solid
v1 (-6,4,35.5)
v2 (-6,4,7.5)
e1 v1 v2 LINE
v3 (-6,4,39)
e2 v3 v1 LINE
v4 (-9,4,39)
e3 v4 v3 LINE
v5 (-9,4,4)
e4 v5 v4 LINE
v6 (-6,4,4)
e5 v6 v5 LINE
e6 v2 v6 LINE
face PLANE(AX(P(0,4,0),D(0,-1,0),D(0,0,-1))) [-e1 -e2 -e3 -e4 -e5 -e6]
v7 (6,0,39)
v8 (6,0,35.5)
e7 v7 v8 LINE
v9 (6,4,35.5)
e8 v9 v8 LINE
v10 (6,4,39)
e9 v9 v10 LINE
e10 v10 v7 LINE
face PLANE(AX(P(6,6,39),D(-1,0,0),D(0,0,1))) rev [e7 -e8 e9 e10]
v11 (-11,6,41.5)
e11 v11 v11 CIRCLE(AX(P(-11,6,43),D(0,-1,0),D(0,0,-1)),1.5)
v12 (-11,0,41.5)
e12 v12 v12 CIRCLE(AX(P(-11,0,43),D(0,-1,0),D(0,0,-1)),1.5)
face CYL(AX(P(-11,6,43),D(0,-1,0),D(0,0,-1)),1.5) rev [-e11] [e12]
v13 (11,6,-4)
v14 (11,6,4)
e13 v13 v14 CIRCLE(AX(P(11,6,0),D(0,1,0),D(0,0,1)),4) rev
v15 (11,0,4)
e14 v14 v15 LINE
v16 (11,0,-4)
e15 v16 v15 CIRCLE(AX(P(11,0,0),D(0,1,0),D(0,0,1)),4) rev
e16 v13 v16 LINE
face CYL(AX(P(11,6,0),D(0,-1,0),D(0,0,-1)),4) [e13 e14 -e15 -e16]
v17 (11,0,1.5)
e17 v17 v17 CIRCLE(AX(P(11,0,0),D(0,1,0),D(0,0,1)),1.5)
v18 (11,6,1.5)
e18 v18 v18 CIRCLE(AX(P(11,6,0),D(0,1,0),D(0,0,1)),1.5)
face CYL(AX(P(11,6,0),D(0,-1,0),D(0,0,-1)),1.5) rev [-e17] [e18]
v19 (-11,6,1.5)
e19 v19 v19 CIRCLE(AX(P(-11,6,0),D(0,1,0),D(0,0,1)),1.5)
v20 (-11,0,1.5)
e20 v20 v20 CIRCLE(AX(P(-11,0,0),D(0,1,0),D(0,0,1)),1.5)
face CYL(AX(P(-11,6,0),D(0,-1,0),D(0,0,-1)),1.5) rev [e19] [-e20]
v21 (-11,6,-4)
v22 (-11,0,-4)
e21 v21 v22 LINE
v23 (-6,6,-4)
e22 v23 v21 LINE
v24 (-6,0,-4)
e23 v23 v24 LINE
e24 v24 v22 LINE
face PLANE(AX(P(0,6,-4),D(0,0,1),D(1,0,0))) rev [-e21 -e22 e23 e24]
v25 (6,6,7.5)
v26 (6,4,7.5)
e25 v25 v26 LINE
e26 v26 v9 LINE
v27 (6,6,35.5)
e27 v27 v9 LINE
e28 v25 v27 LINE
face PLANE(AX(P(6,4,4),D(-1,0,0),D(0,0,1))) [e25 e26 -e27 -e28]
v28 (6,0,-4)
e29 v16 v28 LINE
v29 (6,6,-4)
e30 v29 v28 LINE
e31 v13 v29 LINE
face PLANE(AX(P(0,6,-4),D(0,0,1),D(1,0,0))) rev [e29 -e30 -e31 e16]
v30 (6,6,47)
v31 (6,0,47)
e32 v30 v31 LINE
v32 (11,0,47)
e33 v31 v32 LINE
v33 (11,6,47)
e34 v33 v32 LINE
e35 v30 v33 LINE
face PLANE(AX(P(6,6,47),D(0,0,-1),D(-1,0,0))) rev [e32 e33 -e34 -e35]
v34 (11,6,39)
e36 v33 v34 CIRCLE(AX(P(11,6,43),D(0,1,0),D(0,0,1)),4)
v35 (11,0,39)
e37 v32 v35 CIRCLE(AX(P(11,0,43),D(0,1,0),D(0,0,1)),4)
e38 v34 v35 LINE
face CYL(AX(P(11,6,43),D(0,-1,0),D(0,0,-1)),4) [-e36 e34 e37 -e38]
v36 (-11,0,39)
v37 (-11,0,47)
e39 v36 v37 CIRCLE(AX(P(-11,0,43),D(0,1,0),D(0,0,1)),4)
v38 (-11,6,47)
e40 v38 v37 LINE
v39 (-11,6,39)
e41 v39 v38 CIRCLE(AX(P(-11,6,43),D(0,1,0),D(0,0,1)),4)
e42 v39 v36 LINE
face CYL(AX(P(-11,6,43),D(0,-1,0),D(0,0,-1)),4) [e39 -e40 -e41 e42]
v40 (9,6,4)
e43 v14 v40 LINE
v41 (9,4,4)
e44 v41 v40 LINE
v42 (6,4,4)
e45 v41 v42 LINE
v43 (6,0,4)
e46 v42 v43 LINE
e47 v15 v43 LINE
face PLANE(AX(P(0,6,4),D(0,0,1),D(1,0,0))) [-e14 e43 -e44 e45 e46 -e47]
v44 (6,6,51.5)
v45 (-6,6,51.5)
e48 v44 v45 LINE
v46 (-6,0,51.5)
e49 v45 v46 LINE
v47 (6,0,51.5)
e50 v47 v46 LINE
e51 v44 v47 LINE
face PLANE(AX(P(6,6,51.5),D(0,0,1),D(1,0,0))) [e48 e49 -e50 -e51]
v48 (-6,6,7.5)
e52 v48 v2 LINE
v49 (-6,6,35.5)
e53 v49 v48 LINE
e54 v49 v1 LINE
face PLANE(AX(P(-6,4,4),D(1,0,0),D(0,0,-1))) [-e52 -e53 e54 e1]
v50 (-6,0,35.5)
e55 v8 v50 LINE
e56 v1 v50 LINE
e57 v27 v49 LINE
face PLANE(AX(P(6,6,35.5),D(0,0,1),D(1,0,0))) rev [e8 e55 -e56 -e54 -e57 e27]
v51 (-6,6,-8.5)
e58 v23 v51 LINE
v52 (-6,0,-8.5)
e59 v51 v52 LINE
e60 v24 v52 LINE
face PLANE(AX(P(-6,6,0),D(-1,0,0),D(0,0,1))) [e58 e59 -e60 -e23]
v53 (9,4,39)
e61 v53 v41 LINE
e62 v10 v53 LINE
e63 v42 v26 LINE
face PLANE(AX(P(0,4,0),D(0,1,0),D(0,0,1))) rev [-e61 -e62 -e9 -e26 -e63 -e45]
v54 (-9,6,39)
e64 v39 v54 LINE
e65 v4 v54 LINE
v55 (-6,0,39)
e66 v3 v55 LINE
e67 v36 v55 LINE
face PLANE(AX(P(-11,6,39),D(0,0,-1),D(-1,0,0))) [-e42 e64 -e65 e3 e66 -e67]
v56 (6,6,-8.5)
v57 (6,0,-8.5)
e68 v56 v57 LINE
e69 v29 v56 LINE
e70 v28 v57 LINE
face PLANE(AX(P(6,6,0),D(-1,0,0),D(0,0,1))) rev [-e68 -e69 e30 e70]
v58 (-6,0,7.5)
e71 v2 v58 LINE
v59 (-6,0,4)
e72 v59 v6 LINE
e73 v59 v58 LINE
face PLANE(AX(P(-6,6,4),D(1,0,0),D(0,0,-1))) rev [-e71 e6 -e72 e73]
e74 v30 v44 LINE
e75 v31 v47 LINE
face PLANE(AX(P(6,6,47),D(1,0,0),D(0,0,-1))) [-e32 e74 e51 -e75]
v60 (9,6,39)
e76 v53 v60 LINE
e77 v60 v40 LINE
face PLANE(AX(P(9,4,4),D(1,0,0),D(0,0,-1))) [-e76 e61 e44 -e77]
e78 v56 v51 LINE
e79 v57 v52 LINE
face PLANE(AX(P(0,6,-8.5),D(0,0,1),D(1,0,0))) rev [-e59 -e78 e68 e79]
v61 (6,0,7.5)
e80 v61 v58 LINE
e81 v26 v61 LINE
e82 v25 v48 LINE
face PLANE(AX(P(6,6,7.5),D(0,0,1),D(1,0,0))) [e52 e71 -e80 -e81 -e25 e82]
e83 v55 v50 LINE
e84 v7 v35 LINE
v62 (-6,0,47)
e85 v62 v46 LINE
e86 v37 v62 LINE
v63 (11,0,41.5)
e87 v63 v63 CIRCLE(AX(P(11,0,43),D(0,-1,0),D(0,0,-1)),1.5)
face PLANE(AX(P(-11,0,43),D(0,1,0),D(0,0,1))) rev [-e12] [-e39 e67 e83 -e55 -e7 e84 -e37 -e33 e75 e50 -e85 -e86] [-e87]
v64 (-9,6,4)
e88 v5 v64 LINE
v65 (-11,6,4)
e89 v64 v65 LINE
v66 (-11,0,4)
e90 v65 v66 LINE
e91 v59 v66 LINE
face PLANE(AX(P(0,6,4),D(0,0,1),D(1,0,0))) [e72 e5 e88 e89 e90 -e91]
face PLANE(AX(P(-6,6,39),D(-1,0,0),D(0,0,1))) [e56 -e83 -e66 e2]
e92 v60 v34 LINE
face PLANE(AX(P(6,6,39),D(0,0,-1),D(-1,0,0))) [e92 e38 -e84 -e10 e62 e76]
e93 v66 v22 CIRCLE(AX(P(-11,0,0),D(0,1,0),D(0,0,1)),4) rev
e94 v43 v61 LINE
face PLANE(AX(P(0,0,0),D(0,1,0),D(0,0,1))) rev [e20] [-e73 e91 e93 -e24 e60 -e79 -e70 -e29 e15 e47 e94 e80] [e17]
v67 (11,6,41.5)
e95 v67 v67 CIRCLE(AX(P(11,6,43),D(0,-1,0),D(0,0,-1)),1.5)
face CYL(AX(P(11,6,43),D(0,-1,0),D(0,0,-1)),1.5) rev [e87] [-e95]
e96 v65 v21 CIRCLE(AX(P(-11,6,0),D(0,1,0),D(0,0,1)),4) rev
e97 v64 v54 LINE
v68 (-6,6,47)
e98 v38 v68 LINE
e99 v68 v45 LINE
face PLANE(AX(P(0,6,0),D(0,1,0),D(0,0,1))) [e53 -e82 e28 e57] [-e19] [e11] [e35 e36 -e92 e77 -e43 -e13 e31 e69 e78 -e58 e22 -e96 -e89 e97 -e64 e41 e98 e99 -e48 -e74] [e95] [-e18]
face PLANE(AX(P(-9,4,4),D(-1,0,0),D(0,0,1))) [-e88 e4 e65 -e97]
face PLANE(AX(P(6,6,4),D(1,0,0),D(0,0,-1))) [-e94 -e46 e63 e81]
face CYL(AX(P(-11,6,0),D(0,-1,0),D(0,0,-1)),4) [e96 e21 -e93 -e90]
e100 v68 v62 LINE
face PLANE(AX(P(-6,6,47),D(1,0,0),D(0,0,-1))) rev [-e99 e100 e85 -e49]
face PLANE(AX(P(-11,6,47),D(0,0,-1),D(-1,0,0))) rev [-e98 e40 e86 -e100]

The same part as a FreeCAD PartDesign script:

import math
import FreeCAD as App
import Part
import Sketcher

V = App.Vector
Q = App.Units.Quantity


def add_polygon(sketch, points):
    """Adds a closed chain of lines whose ends are joined by coincident constraints."""
    first, n = sketch.GeometryCount, len(points)
    for a, b in zip(points, points[1:] + points[:1]):
        sketch.addGeometry(Part.LineSegment(App.Vector(*a, 0), App.Vector(*b, 0)), False)
    for i in range(n):
        sketch.addConstraint(Sketcher.Constraint("Coincident", first + i, 2, first + (i + 1) % n, 1))

doc = App.newDocument("Part")
body = doc.addObject("PartDesign::Body", "Body")
body.AllowCompound = True

# Sketch on XZ plane
sketch1 = body.newObject("Sketcher::SketchObject", "Sketch")
sketch1.AttachmentSupport = (doc.getObject("XZ_Plane"), [""])
sketch1.MapMode = "FlatFace"
sketch1.addGeometry(Part.LineSegment(V(6, 4, 0), V(11, 4, 0)), False)
sketch1.addGeometry(Part.ArcOfCircle(Part.Circle(V(11, 0, 0), V(0, 0, 1), 4), math.radians(-90), math.radians(90)), False)
sketch1.addGeometry(Part.LineSegment(V(11, -4, 0), V(6, -4, 0)), False)
sketch1.addGeometry(Part.LineSegment(V(6, -4, 0), V(6, -8.5, 0)), False)
sketch1.addGeometry(Part.LineSegment(V(6, -8.5, 0), V(-6, -8.5, 0)), False)
sketch1.addGeometry(Part.LineSegment(V(-6, -8.5, 0), V(-6, -4, 0)), False)
sketch1.addGeometry(Part.LineSegment(V(-6, -4, 0), V(-11, -4, 0)), False)
sketch1.addGeometry(Part.ArcOfCircle(Part.Circle(V(-11, 0, 0), V(0, 0, 1), 4), math.radians(90), math.radians(270)), False)
sketch1.addGeometry(Part.LineSegment(V(-11, 4, 0), V(-6, 4, 0)), False)
sketch1.addGeometry(Part.LineSegment(V(-6, 4, 0), V(-6, 7.5, 0)), False)
sketch1.addGeometry(Part.LineSegment(V(-6, 7.5, 0), V(6, 7.5, 0)), False)
sketch1.addGeometry(Part.LineSegment(V(6, 7.5, 0), V(6, 4, 0)), False)
sketch1.addGeometry(Part.Circle(V(11, 0, 0), V(0, 0, 1), 1.5), False)
sketch1.addGeometry(Part.Circle(V(-11, 0, 0), V(0, 0, 1), 1.5), False)
sketch1.addGeometry(Part.LineSegment(V(6, 51.5, 0), V(6, 47, 0)), False)
sketch1.addGeometry(Part.LineSegment(V(6, 47, 0), V(11, 47, 0)), False)
sketch1.addGeometry(Part.ArcOfCircle(Part.Circle(V(11, 43, 0), V(0, 0, 1), 4), math.radians(-90), math.radians(90)), False)
sketch1.addGeometry(Part.LineSegment(V(11, 39, 0), V(6, 39, 0)), False)
sketch1.addGeometry(Part.LineSegment(V(6, 39, 0), V(6, 35.5, 0)), False)
sketch1.addGeometry(Part.LineSegment(V(6, 35.5, 0), V(-6, 35.5, 0)), False)
sketch1.addGeometry(Part.LineSegment(V(-6, 35.5, 0), V(-6, 39, 0)), False)
sketch1.addGeometry(Part.LineSegment(V(-6, 39, 0), V(-11, 39, 0)), False)
sketch1.addGeometry(Part.ArcOfCircle(Part.Circle(V(-11, 43, 0), V(0, 0, 1), 4), math.radians(90), math.radians(270)), False)
sketch1.addGeometry(Part.LineSegment(V(-11, 47, 0), V(-6, 47, 0)), False)
sketch1.addGeometry(Part.LineSegment(V(-6, 47, 0), V(-6, 51.5, 0)), False)
sketch1.addGeometry(Part.LineSegment(V(-6, 51.5, 0), V(6, 51.5, 0)), False)
sketch1.addGeometry(Part.Circle(V(11, 43, 0), V(0, 0, 1), 1.5), False)
sketch1.addGeometry(Part.Circle(V(-11, 43, 0), V(0, 0, 1), 1.5), False)
sketch1.addConstraint(Sketcher.Constraint("Tangent", 0, 2, 1, 2))
sketch1.addConstraint(Sketcher.Constraint("Tangent", 1, 1, 2, 1))
sketch1.addConstraint(Sketcher.Constraint("Coincident", 2, 2, 3, 1))
sketch1.addConstraint(Sketcher.Constraint("Coincident", 3, 2, 4, 1))
sketch1.addConstraint(Sketcher.Constraint("Coincident", 4, 2, 5, 1))
sketch1.addConstraint(Sketcher.Constraint("Coincident", 5, 2, 6, 1))
sketch1.addConstraint(Sketcher.Constraint("Tangent", 6, 2, 7, 2))
sketch1.addConstraint(Sketcher.Constraint("Tangent", 7, 1, 8, 1))
sketch1.addConstraint(Sketcher.Constraint("Coincident", 8, 2, 9, 1))
sketch1.addConstraint(Sketcher.Constraint("Coincident", 9, 2, 10, 1))
sketch1.addConstraint(Sketcher.Constraint("Coincident", 10, 2, 11, 1))
sketch1.addConstraint(Sketcher.Constraint("Coincident", 11, 2, 0, 1))
sketch1.addConstraint(Sketcher.Constraint("Coincident", 14, 2, 15, 1))
sketch1.addConstraint(Sketcher.Constraint("Tangent", 15, 2, 16, 2))
sketch1.addConstraint(Sketcher.Constraint("Tangent", 16, 1, 17, 1))
sketch1.addConstraint(Sketcher.Constraint("Coincident", 17, 2, 18, 1))
sketch1.addConstraint(Sketcher.Constraint("Coincident", 18, 2, 19, 1))
sketch1.addConstraint(Sketcher.Constraint("Coincident", 19, 2, 20, 1))
sketch1.addConstraint(Sketcher.Constraint("Coincident", 20, 2, 21, 1))
sketch1.addConstraint(Sketcher.Constraint("Tangent", 21, 2, 22, 2))
sketch1.addConstraint(Sketcher.Constraint("Tangent", 22, 1, 23, 1))
sketch1.addConstraint(Sketcher.Constraint("Coincident", 23, 2, 24, 1))
sketch1.addConstraint(Sketcher.Constraint("Coincident", 24, 2, 25, 1))
sketch1.addConstraint(Sketcher.Constraint("Coincident", 25, 2, 14, 1))
sketch1.addConstraint(Sketcher.Constraint("Horizontal", 0))
sketch1.addConstraint(Sketcher.Constraint("Horizontal", 2))
sketch1.addConstraint(Sketcher.Constraint("Vertical", 3))
sketch1.addConstraint(Sketcher.Constraint("Horizontal", 4))
sketch1.addConstraint(Sketcher.Constraint("Vertical", 5))
sketch1.addConstraint(Sketcher.Constraint("Horizontal", 6))
sketch1.addConstraint(Sketcher.Constraint("Horizontal", 8))
sketch1.addConstraint(Sketcher.Constraint("Vertical", 9))
sketch1.addConstraint(Sketcher.Constraint("Horizontal", 10))
sketch1.addConstraint(Sketcher.Constraint("Vertical", 11))
sketch1.addConstraint(Sketcher.Constraint("Vertical", 14))
sketch1.addConstraint(Sketcher.Constraint("Horizontal", 15))
sketch1.addConstraint(Sketcher.Constraint("Horizontal", 17))
sketch1.addConstraint(Sketcher.Constraint("Vertical", 18))
sketch1.addConstraint(Sketcher.Constraint("Horizontal", 19))
sketch1.addConstraint(Sketcher.Constraint("Vertical", 20))
sketch1.addConstraint(Sketcher.Constraint("Horizontal", 21))
sketch1.addConstraint(Sketcher.Constraint("Horizontal", 23))
sketch1.addConstraint(Sketcher.Constraint("Vertical", 24))
sketch1.addConstraint(Sketcher.Constraint("Horizontal", 25))
sketch1.addConstraint(Sketcher.Constraint("Coincident", 12, 3, 1, 3))
sketch1.addConstraint(Sketcher.Constraint("Coincident", 13, 3, 7, 3))
sketch1.addConstraint(Sketcher.Constraint("Coincident", 26, 3, 16, 3))
sketch1.addConstraint(Sketcher.Constraint("Coincident", 27, 3, 22, 3))
sketch1.addConstraint(Sketcher.Constraint("Equal", 1, 7))
sketch1.addConstraint(Sketcher.Constraint("Equal", 12, 13))
sketch1.addConstraint(Sketcher.Constraint("Equal", 7, 16))
sketch1.addConstraint(Sketcher.Constraint("Equal", 16, 22))
sketch1.addConstraint(Sketcher.Constraint("Equal", 13, 26))
sketch1.addConstraint(Sketcher.Constraint("Equal", 26, 27))
sketch1.addConstraint(Sketcher.Constraint("Symmetric", 1, 3, 7, 3, -1, 1))
sketch1.addConstraint(Sketcher.Constraint("Symmetric", 16, 3, 22, 3, -2))
sketch1.addConstraint(Sketcher.Constraint("Symmetric", 2, 2, 5, 2, -2))
sketch1.addConstraint(Sketcher.Constraint("Vertical", 12, 3, 16, 3))
sketch1.addConstraint(Sketcher.Constraint("Vertical", 5, 2, 8, 2))
sketch1.addConstraint(Sketcher.Constraint("Vertical", 3, 2, 10, 2))
sketch1.addConstraint(Sketcher.Constraint("Vertical", 11, 2, 14, 2))
sketch1.addConstraint(Sketcher.Constraint("Vertical", 14, 2, 17, 2))
sketch1.addConstraint(Sketcher.Constraint("Vertical", 9, 2, 19, 2))
sketch1.addConstraint(Sketcher.Constraint("Vertical", 20, 2, 23, 2))
sketch1.addConstraint(Sketcher.Constraint("Equal", 5, 14))
sketch1.addConstraint(Sketcher.Constraint("Equal", 11, 18))
sketch1.addConstraint(Sketcher.Constraint("Diameter", 12, Q("3 mm")))
sketch1.addConstraint(Sketcher.Constraint("Radius", 1, Q("4 mm")))
sketch1.addConstraint(Sketcher.Constraint("DistanceX", 0, 1, 0, 2, Q("5 mm")))
sketch1.addConstraint(Sketcher.Constraint("DistanceX", 4, 2, 4, 1, Q("12 mm")))
sketch1.addConstraint(Sketcher.Constraint("DistanceY", 3, 2, 3, 1, Q("4.5 mm")))
sketch1.addConstraint(Sketcher.Constraint("DistanceY", 9, 1, 9, 2, Q("3.5 mm")))
sketch1.addConstraint(Sketcher.Constraint("DistanceY", -1, 1, 16, 3, Q("43 mm")))
pad1 = body.newObject("PartDesign::Pad", "Pad")
pad1.Profile = sketch1
pad1.Length = 6
pad1.Reversed = True

# Sketch on XZ plane
sketch2 = body.newObject("Sketcher::SketchObject", "Sketch001")
sketch2.AttachmentSupport = (doc.getObject("XZ_Plane"), [""])
sketch2.MapMode = "FlatFace"
sketch2.AttachmentOffset = App.Placement(V(0, 0, -6), App.Rotation())
add_polygon(sketch2, [(6, 4), (6, 39), (9, 39), (9, 4)])  # lines 0-3
add_polygon(sketch2, [(-9, 4), (-9, 39), (-6, 39), (-6, 4)])  # lines 4-7
sketch2.addConstraint(Sketcher.Constraint("Vertical", 0))
sketch2.addConstraint(Sketcher.Constraint("Horizontal", 1))
sketch2.addConstraint(Sketcher.Constraint("Vertical", 2))
sketch2.addConstraint(Sketcher.Constraint("Horizontal", 3))
sketch2.addConstraint(Sketcher.Constraint("Vertical", 4))
sketch2.addConstraint(Sketcher.Constraint("Horizontal", 5))
sketch2.addConstraint(Sketcher.Constraint("Vertical", 6))
sketch2.addConstraint(Sketcher.Constraint("Horizontal", 7))
sketch2.addConstraint(Sketcher.Constraint("Symmetric", 1, 2, 4, 2, -2))
sketch2.addConstraint(Sketcher.Constraint("Symmetric", 3, 2, 6, 2, -2))
sketch2.addConstraint(Sketcher.Constraint("DistanceX", 1, 1, 1, 2, Q("3 mm")))
sketch2.addConstraint(Sketcher.Constraint("DistanceY", 0, 1, 0, 2, Q("35 mm")))
sketch2.addConstraint(Sketcher.Constraint("DistanceX", -1, 1, 0, 2, Q("6 mm")))
sketch2.addConstraint(Sketcher.Constraint("DistanceY", -1, 1, 0, 2, Q("39 mm")))
pad2 = body.newObject("PartDesign::Pad", "Pad001")
pad2.Profile = sketch2
pad2.Length = 2

doc.recompute()
